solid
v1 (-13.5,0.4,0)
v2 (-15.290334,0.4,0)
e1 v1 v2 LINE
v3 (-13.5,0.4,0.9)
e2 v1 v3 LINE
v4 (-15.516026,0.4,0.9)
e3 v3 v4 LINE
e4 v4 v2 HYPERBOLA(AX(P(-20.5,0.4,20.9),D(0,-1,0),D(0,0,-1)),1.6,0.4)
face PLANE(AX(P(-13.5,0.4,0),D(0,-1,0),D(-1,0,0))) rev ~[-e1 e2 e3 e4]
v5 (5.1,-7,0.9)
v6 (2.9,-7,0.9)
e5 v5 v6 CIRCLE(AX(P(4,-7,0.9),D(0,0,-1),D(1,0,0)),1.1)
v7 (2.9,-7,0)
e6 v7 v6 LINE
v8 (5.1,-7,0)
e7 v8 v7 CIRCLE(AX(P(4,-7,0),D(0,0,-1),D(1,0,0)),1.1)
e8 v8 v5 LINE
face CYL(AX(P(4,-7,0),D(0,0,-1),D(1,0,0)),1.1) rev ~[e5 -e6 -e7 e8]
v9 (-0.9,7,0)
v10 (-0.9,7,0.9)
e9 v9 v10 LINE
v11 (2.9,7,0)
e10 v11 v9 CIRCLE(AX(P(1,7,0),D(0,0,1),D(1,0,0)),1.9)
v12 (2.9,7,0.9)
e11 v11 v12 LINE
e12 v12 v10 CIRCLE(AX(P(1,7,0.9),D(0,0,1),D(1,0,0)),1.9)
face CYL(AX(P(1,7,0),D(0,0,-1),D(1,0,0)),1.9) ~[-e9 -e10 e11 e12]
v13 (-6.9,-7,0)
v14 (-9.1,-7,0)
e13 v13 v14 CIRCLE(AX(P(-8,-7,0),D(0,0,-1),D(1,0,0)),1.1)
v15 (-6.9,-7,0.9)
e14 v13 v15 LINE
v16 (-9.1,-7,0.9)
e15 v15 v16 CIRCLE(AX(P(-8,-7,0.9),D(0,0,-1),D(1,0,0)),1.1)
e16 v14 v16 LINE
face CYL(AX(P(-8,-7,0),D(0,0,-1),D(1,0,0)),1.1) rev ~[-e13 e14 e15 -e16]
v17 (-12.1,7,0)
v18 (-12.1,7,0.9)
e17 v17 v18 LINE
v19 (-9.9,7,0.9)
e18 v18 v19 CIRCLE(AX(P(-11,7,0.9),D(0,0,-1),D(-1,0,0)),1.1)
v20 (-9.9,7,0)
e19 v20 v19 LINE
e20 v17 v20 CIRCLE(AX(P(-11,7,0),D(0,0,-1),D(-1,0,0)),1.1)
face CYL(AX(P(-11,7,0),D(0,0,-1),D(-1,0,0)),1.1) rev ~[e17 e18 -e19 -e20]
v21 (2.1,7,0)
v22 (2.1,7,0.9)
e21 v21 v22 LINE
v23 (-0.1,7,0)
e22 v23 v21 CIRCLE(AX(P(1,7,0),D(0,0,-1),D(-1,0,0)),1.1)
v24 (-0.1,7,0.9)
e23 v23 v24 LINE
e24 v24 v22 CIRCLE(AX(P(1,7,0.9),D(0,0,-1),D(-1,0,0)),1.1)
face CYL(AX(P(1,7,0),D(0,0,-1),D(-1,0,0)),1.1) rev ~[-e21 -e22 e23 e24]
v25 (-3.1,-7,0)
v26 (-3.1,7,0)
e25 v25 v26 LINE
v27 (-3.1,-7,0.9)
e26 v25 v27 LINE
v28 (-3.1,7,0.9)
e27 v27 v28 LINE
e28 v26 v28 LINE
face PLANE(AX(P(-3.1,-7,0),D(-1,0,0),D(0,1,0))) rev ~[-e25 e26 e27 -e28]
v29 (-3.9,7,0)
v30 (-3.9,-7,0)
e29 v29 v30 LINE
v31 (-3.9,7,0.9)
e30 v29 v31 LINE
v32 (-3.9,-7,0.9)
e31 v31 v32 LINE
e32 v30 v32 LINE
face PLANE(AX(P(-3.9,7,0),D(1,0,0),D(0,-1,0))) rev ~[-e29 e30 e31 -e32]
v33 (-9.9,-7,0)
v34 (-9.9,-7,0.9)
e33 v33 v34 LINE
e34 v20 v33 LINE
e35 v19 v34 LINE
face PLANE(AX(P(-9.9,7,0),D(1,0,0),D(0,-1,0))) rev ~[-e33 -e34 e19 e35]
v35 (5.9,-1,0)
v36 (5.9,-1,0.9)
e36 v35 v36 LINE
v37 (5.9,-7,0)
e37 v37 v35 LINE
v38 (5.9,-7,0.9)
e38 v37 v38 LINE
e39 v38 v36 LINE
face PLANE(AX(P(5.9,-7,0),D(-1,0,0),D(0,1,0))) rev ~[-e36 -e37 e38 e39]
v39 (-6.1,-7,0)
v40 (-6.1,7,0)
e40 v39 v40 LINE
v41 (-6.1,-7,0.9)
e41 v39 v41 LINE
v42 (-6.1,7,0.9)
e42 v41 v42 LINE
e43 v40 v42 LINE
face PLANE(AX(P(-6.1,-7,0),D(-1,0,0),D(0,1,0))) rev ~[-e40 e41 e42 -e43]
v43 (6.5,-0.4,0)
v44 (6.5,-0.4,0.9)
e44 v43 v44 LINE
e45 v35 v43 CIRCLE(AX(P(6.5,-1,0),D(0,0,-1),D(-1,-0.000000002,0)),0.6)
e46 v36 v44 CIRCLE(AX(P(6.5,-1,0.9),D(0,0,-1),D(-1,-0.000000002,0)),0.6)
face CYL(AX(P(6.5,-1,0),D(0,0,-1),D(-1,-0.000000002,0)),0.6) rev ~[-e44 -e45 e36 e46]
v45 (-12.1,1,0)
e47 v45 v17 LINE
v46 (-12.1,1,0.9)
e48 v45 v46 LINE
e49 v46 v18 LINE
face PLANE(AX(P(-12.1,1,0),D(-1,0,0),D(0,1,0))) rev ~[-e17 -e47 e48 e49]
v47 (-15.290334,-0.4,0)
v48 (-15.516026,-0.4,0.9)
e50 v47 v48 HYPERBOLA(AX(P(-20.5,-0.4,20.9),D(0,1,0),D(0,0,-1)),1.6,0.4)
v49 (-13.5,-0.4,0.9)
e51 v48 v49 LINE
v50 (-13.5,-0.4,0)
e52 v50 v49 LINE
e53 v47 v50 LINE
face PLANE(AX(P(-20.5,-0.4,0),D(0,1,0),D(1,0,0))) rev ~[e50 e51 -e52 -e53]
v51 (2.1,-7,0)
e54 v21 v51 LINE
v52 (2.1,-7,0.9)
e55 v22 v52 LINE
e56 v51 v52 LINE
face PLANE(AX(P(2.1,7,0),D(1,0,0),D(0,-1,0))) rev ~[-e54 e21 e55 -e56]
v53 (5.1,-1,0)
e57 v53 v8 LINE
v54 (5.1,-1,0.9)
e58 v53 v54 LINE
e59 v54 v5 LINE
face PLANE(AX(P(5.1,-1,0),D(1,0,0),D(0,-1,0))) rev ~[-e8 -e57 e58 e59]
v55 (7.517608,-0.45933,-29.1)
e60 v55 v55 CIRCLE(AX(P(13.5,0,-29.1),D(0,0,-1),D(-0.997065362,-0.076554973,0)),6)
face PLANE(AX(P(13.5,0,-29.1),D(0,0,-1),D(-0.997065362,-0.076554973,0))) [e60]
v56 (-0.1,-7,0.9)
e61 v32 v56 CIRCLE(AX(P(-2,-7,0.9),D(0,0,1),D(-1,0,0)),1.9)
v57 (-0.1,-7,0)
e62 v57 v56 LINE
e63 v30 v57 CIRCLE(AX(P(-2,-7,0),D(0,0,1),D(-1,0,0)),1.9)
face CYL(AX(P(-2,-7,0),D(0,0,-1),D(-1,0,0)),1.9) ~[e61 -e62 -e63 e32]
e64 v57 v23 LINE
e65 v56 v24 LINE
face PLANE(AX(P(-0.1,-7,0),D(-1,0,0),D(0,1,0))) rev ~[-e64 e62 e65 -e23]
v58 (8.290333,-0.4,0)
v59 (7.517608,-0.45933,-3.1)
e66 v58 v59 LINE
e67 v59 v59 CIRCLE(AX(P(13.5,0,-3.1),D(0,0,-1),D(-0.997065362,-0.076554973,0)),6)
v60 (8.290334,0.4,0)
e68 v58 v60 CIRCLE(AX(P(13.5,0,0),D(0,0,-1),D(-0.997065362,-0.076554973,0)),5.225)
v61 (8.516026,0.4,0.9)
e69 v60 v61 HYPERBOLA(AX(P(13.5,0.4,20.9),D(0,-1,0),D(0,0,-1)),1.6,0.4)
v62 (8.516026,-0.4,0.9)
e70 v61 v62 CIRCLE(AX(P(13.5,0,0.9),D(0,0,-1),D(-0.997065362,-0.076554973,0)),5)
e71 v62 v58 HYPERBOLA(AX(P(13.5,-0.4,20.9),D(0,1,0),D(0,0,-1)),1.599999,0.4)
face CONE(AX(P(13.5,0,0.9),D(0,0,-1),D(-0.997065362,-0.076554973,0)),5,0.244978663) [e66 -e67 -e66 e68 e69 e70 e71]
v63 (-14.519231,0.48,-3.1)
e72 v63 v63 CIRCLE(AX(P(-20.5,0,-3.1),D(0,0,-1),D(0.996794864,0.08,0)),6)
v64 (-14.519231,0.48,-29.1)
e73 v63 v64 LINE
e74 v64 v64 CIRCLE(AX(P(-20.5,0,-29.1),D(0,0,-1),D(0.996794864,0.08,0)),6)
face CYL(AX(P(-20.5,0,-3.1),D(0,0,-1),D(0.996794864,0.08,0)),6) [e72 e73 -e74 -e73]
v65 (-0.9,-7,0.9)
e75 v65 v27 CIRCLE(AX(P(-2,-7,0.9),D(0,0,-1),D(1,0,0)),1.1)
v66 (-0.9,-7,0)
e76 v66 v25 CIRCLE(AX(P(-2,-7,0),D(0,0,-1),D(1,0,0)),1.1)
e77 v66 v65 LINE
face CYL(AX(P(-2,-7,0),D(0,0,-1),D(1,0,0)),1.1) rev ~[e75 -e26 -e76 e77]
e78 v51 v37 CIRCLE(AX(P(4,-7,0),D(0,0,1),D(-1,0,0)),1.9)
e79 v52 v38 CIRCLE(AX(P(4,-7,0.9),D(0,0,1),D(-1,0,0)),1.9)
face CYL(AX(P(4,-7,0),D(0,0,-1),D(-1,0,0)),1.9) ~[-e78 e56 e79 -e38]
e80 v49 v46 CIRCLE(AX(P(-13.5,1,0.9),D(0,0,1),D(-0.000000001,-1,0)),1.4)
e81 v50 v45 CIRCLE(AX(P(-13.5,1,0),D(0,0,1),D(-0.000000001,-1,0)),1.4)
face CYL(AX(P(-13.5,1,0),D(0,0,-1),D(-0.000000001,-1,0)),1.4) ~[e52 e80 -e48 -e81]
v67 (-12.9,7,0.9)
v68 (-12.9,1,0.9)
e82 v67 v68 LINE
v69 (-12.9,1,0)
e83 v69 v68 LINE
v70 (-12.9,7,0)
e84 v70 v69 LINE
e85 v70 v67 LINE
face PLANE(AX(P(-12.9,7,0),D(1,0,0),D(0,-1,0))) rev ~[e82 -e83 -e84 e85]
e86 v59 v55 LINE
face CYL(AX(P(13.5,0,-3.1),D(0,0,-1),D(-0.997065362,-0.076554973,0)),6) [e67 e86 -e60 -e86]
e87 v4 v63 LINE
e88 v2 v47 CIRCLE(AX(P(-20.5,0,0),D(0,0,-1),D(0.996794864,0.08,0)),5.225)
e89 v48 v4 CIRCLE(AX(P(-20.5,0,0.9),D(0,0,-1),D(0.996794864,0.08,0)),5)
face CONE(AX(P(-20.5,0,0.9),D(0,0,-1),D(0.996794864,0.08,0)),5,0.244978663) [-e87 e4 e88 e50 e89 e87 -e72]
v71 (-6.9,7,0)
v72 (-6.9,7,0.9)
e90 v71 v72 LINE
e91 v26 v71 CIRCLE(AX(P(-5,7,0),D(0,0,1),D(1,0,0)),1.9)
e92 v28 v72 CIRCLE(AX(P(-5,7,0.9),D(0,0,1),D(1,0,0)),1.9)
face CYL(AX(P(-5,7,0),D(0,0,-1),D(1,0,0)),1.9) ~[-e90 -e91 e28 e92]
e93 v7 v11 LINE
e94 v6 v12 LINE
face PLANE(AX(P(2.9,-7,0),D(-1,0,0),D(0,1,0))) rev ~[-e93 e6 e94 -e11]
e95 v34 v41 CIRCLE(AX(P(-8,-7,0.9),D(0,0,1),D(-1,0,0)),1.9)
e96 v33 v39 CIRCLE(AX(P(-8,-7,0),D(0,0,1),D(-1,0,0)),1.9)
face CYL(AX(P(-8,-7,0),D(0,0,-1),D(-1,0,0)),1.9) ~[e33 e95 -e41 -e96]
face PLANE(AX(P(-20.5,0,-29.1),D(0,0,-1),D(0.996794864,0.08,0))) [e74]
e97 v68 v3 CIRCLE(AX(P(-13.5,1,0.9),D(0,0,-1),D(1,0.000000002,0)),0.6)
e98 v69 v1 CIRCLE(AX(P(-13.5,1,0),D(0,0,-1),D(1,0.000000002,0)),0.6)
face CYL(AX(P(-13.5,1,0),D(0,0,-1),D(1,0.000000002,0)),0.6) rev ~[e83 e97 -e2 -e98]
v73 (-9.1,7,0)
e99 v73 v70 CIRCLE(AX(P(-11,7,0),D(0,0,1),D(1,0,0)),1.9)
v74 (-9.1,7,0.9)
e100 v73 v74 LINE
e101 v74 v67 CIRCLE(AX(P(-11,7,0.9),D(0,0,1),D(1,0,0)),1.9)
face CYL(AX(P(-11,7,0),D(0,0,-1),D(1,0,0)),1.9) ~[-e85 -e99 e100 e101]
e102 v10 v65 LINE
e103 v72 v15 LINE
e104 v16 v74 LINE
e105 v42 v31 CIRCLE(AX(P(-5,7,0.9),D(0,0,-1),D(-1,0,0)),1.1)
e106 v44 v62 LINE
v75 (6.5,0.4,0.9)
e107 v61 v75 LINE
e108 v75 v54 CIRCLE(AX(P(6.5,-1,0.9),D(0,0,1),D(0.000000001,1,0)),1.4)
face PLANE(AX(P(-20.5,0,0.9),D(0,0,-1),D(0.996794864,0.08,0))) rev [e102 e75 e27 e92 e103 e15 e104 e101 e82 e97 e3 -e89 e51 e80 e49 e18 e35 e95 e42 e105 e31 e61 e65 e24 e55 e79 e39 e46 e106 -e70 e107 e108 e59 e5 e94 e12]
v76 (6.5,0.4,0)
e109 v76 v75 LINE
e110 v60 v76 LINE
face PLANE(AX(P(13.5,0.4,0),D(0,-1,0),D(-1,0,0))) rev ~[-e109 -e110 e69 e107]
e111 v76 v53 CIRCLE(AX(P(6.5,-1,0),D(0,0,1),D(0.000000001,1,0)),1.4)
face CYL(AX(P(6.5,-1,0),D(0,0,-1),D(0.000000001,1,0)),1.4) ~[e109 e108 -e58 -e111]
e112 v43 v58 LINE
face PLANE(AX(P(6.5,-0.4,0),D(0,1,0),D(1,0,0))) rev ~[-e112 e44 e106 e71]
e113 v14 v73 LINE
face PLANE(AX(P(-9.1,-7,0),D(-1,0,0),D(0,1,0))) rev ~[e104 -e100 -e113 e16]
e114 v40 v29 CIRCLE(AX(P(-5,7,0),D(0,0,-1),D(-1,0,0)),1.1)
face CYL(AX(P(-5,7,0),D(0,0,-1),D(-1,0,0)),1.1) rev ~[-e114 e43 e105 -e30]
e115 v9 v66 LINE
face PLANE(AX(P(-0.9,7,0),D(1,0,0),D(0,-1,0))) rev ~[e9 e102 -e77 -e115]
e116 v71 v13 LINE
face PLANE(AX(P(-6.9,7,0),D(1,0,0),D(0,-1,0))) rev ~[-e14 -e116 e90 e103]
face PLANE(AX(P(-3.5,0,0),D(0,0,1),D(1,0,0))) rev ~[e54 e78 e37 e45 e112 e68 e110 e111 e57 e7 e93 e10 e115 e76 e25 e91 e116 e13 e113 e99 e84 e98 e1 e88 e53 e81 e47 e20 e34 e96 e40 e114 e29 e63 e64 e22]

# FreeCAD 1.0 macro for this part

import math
import FreeCAD as App
import Part
import Sketcher

V = App.Vector


def add_polygon(sketch, points):
    """Adds a closed chain of lines whose ends are joined by coincident constraints."""
    first, n = sketch.GeometryCount, len(points)
    for a, b in zip(points, points[1:] + points[:1]):
        sketch.addGeometry(Part.LineSegment(App.Vector(*a, 0), App.Vector(*b, 0)), False)
    for i in range(n):
        sketch.addConstraint(Sketcher.Constraint("Coincident", first + i, 2, first + (i + 1) % n, 1))

doc = App.newDocument("Part")
body = doc.addObject("PartDesign::Body", "Body")

# Sketch on XY plane
sketch1 = doc.addObject("Sketcher::SketchObject", "Sketch")
body.addObject(sketch1)
sketch1.AttachmentSupport = (doc.XY_Plane, [""])
sketch1.MapMode = "FlatFace"
sketch1.addGeometry(Part.LineSegment(V(-20.5, -0.4, 0), V(-13.5, -0.4, 0)), False)
sketch1.addGeometry(Part.ArcOfCircle(Part.Circle(V(-13.5, 1, 0), V(0, 0, 1), 1.4), math.radians(-90), math.radians(0)), False)
sketch1.addGeometry(Part.LineSegment(V(-12.1, 1, 0), V(-12.1, 7, 0)), False)
sketch1.addGeometry(Part.ArcOfCircle(Part.Circle(V(-11, 7, 0), V(0, 0, 1), 1.1), math.radians(0), math.radians(180)), False)
sketch1.addGeometry(Part.LineSegment(V(-9.9, 7, 0), V(-9.9, -7, 0)), False)
sketch1.addGeometry(Part.ArcOfCircle(Part.Circle(V(-8, -7, 0), V(0, 0, 1), 1.9), math.radians(180), math.radians(360)), False)
sketch1.addGeometry(Part.LineSegment(V(-6.1, -7, 0), V(-6.1, 7, 0)), False)
sketch1.addGeometry(Part.ArcOfCircle(Part.Circle(V(-5, 7, 0), V(0, 0, 1), 1.1), math.radians(0), math.radians(180)), False)
sketch1.addGeometry(Part.LineSegment(V(-3.9, 7, 0), V(-3.9, -7, 0)), False)
sketch1.addGeometry(Part.ArcOfCircle(Part.Circle(V(-2, -7, 0), V(0, 0, 1), 1.9), math.radians(180), math.radians(360)), False)
sketch1.addGeometry(Part.LineSegment(V(-0.1, -7, 0), V(-0.1, 7, 0)), False)
sketch1.addGeometry(Part.ArcOfCircle(Part.Circle(V(1, 7, 0), V(0, 0, 1), 1.1), math.radians(0), math.radians(180)), False)
sketch1.addGeometry(Part.LineSegment(V(2.1, 7, 0), V(2.1, -7, 0)), False)
sketch1.addGeometry(Part.ArcOfCircle(Part.Circle(V(4, -7, 0), V(0, 0, 1), 1.9), math.radians(180), math.radians(360)), False)
sketch1.addGeometry(Part.LineSegment(V(5.9, -7, 0), V(5.9, -1, 0)), False)
sketch1.addGeometry(Part.ArcOfCircle(Part.Circle(V(6.5, -1, 0), V(0, 0, 1), 0.6), math.radians(90), math.radians(180)), False)
sketch1.addGeometry(Part.LineSegment(V(6.5, -0.4, 0), V(13.5, -0.4, 0)), False)
sketch1.addGeometry(Part.ArcOfCircle(Part.Circle(V(13.5, 0, 0), V(0, 0, 1), 0.4), math.radians(-90), math.radians(90)), False)
sketch1.addGeometry(Part.LineSegment(V(13.5, 0.4, 0), V(6.5, 0.4, 0)), False)
sketch1.addGeometry(Part.ArcOfCircle(Part.Circle(V(6.5, -1, 0), V(0, 0, 1), 1.4), math.radians(90), math.radians(180)), False)
sketch1.addGeometry(Part.LineSegment(V(5.1, -1, 0), V(5.1, -7, 0)), False)
sketch1.addGeometry(Part.ArcOfCircle(Part.Circle(V(4, -7, 0), V(0, 0, 1), 1.1), math.radians(180), math.radians(360)), False)
sketch1.addGeometry(Part.LineSegment(V(2.9, -7, 0), V(2.9, 7, 0)), False)
sketch1.addGeometry(Part.ArcOfCircle(Part.Circle(V(1, 7, 0), V(0, 0, 1), 1.9), math.radians(0), math.radians(180)), False)
sketch1.addGeometry(Part.LineSegment(V(-0.9, 7, 0), V(-0.9, -7, 0)), False)
sketch1.addGeometry(Part.ArcOfCircle(Part.Circle(V(-2, -7, 0), V(0, 0, 1), 1.1), math.radians(180), math.radians(360)), False)
sketch1.addGeometry(Part.LineSegment(V(-3.1, -7, 0), V(-3.1, 7, 0)), False)
sketch1.addGeometry(Part.ArcOfCircle(Part.Circle(V(-5, 7, 0), V(0, 0, 1), 1.9), math.radians(0), math.radians(180)), False)
sketch1.addGeometry(Part.LineSegment(V(-6.9, 7, 0), V(-6.9, -7, 0)), False)
sketch1.addGeometry(Part.ArcOfCircle(Part.Circle(V(-8, -7, 0), V(0, 0, 1), 1.1), math.radians(180), math.radians(360)), False)
sketch1.addGeometry(Part.LineSegment(V(-9.1, -7, 0), V(-9.1, 7, 0)), False)
sketch1.addGeometry(Part.ArcOfCircle(Part.Circle(V(-11, 7, 0), V(0, 0, 1), 1.9), math.radians(0), math.radians(180)), False)
sketch1.addGeometry(Part.LineSegment(V(-12.9, 7, 0), V(-12.9, 1, 0)), False)
sketch1.addGeometry(Part.ArcOfCircle(Part.Circle(V(-13.5, 1, 0), V(0, 0, 1), 0.6), math.radians(-90), math.radians(0)), False)
sketch1.addGeometry(Part.LineSegment(V(-13.5, 0.4, 0), V(-20.5, 0.4, 0)), False)
sketch1.addGeometry(Part.ArcOfCircle(Part.Circle(V(-20.5, 0, 0), V(0, 0, 1), 0.4), math.radians(90), math.radians(270)), False)
sketch1.addConstraint(Sketcher.Constraint("Tangent", 0, 2, 1, 1))
sketch1.addConstraint(Sketcher.Constraint("Tangent", 1, 2, 2, 1))
sketch1.addConstraint(Sketcher.Constraint("Tangent", 2, 2, 3, 2))
sketch1.addConstraint(Sketcher.Constraint("Tangent", 3, 1, 4, 1))
sketch1.addConstraint(Sketcher.Constraint("Tangent", 4, 2, 5, 1))
sketch1.addConstraint(Sketcher.Constraint("Tangent", 5, 2, 6, 1))
sketch1.addConstraint(Sketcher.Constraint("Tangent", 6, 2, 7, 2))
sketch1.addConstraint(Sketcher.Constraint("Tangent", 7, 1, 8, 1))
sketch1.addConstraint(Sketcher.Constraint("Tangent", 8, 2, 9, 1))
sketch1.addConstraint(Sketcher.Constraint("Tangent", 9, 2, 10, 1))
sketch1.addConstraint(Sketcher.Constraint("Tangent", 10, 2, 11, 2))
sketch1.addConstraint(Sketcher.Constraint("Tangent", 11, 1, 12, 1))
sketch1.addConstraint(Sketcher.Constraint("Tangent", 12, 2, 13, 1))
sketch1.addConstraint(Sketcher.Constraint("Tangent", 13, 2, 14, 1))
sketch1.addConstraint(Sketcher.Constraint("Tangent", 14, 2, 15, 2))
sketch1.addConstraint(Sketcher.Constraint("Tangent", 15, 1, 16, 1))
sketch1.addConstraint(Sketcher.Constraint("Tangent", 16, 2, 17, 1))
sketch1.addConstraint(Sketcher.Constraint("Tangent", 17, 2, 18, 1))
sketch1.addConstraint(Sketcher.Constraint("Tangent", 18, 2, 19, 1))
sketch1.addConstraint(Sketcher.Constraint("Tangent", 19, 2, 20, 1))
sketch1.addConstraint(Sketcher.Constraint("Tangent", 20, 2, 21, 2))
sketch1.addConstraint(Sketcher.Constraint("Tangent", 21, 1, 22, 1))
sketch1.addConstraint(Sketcher.Constraint("Tangent", 22, 2, 23, 1))
sketch1.addConstraint(Sketcher.Constraint("Tangent", 23, 2, 24, 1))
sketch1.addConstraint(Sketcher.Constraint("Tangent", 24, 2, 25, 2))
sketch1.addConstraint(Sketcher.Constraint("Tangent", 25, 1, 26, 1))
sketch1.addConstraint(Sketcher.Constraint("Tangent", 26, 2, 27, 1))
sketch1.addConstraint(Sketcher.Constraint("Tangent", 27, 2, 28, 1))
sketch1.addConstraint(Sketcher.Constraint("Tangent", 28, 2, 29, 2))
sketch1.addConstraint(Sketcher.Constraint("Tangent", 29, 1, 30, 1))
sketch1.addConstraint(Sketcher.Constraint("Tangent", 30, 2, 31, 1))
sketch1.addConstraint(Sketcher.Constraint("Tangent", 31, 2, 32, 1))
sketch1.addConstraint(Sketcher.Constraint("Tangent", 32, 2, 33, 2))
sketch1.addConstraint(Sketcher.Constraint("Tangent", 33, 1, 34, 1))
sketch1.addConstraint(Sketcher.Constraint("Tangent", 34, 2, 35, 1))
sketch1.addConstraint(Sketcher.Constraint("Tangent", 35, 2, 0, 1))
sketch1.addConstraint(Sketcher.Constraint("Horizontal", 0))
sketch1.addConstraint(Sketcher.Constraint("Vertical", 2))
sketch1.addConstraint(Sketcher.Constraint("Vertical", 4))
sketch1.addConstraint(Sketcher.Constraint("Vertical", 6))
sketch1.addConstraint(Sketcher.Constraint("Vertical", 8))
sketch1.addConstraint(Sketcher.Constraint("Vertical", 10))
sketch1.addConstraint(Sketcher.Constraint("Vertical", 12))
sketch1.addConstraint(Sketcher.Constraint("Vertical", 14))
sketch1.addConstraint(Sketcher.Constraint("Horizontal", 16))
sketch1.addConstraint(Sketcher.Constraint("Horizontal", 18))
sketch1.addConstraint(Sketcher.Constraint("Vertical", 20))
sketch1.addConstraint(Sketcher.Constraint("Vertical", 22))
sketch1.addConstraint(Sketcher.Constraint("Vertical", 24))
sketch1.addConstraint(Sketcher.Constraint("Vertical", 26))
sketch1.addConstraint(Sketcher.Constraint("Vertical", 28))
sketch1.addConstraint(Sketcher.Constraint("Vertical", 30))
sketch1.addConstraint(Sketcher.Constraint("Vertical", 32))
sketch1.addConstraint(Sketcher.Constraint("Horizontal", 34))
sketch1.addConstraint(Sketcher.Constraint("Coincident", 19, 3, 15, 3))
sketch1.addConstraint(Sketcher.Constraint("Coincident", 21, 3, 13, 3))
sketch1.addConstraint(Sketcher.Constraint("Coincident", 23, 3, 11, 3))
sketch1.addConstraint(Sketcher.Constraint("Coincident", 25, 3, 9, 3))
sketch1.addConstraint(Sketcher.Constraint("Coincident", 27, 3, 7, 3))
sketch1.addConstraint(Sketcher.Constraint("Coincident", 29, 3, 5, 3))
sketch1.addConstraint(Sketcher.Constraint("Coincident", 31, 3, 3, 3))
sketch1.addConstraint(Sketcher.Constraint("Coincident", 33, 3, 1, 3))
sketch1.addConstraint(Sketcher.Constraint("Equal", 3, 7))
sketch1.addConstraint(Sketcher.Constraint("Equal", 5, 9))
sketch1.addConstraint(Sketcher.Constraint("Equal", 7, 11))
sketch1.addConstraint(Sketcher.Constraint("Equal", 9, 13))
sketch1.addConstraint(Sketcher.Constraint("Equal", 1, 19))
sketch1.addConstraint(Sketcher.Constraint("Equal", 11, 21))
sketch1.addConstraint(Sketcher.Constraint("Symmetric", 0, 2, 17, 2, -1, 1))
sketch1.addConstraint(Sketcher.Constraint("PointOnObject", 17, 3, -1))
sketch1.addConstraint(Sketcher.Constraint("Horizontal", 3, 3, 7, 3))
sketch1.addConstraint(Sketcher.Constraint("Horizontal", 5, 3, 9, 3))
sketch1.addConstraint(Sketcher.Constraint("Horizontal", 7, 3, 11, 3))
sketch1.addConstraint(Sketcher.Constraint("Horizontal", 9, 3, 13, 3))
sketch1.addConstraint(Sketcher.Constraint("Equal", 0, 16))
sketch1.addConstraint(Sketcher.Constraint("Equal", 2, 14))
sketch1.addConstraint(Sketcher.Constraint("Radius", 1, 1.4))
sketch1.addConstraint(Sketcher.Constraint("Radius", 3, 1.1))
sketch1.addConstraint(Sketcher.Constraint("Radius", 5, 1.9))
sketch1.addConstraint(Sketcher.Constraint("DistanceX", 0, 1, 0, 2, 7.0))
sketch1.addConstraint(Sketcher.Constraint("DistanceY", 2, 1, 2, 2, 6.0))
pad1 = doc.addObject("PartDesign::Pad", "Pad")
body.addObject(pad1)
pad1.Profile = sketch1
pad1.Length = 0.9

# Sketch on XZ plane
sketch2 = doc.addObject("Sketcher::SketchObject", "Sketch001")
body.addObject(sketch2)
sketch2.AttachmentSupport = (doc.XZ_Plane, [""])
sketch2.MapMode = "FlatFace"
add_polygon(sketch2, [(-25.5, 0.9), (-20.5, 0.9), (-20.5, -29.1), (-26.5, -29.1), (-26.5, -3.1)])  # lines 0-4
sketch2.addGeometry(Part.LineSegment(V(-20.5, 0.9, 0), V(-20.5, -29.1, 0)), True)  # axis
sketch2.addConstraint(Sketcher.Constraint("Horizontal", 0))
sketch2.addConstraint(Sketcher.Constraint("Vertical", 1))
sketch2.addConstraint(Sketcher.Constraint("Horizontal", 2))
sketch2.addConstraint(Sketcher.Constraint("Vertical", 3))
sketch2.addConstraint(Sketcher.Constraint("Vertical", 5))
sketch2.addConstraint(Sketcher.Constraint("Coincident", 5, 1, 0, 2))
sketch2.addConstraint(Sketcher.Constraint("Horizontal", 2, 2, 5, 2))
sketch2.addConstraint(Sketcher.Constraint("DistanceX", 0, 1, 0, 2, 5.0))
sketch2.addConstraint(Sketcher.Constraint("DistanceX", 2, 2, 2, 1, 6.0))
sketch2.addConstraint(Sketcher.Constraint("DistanceY", 1, 2, 1, 1, 30.0))
sketch2.addConstraint(Sketcher.Constraint("DistanceY", 3, 1, 3, 2, 26.0))
sketch2.addConstraint(Sketcher.Constraint("DistanceX", 0, 2, -1, 1, 20.5))
sketch2.addConstraint(Sketcher.Constraint("DistanceY", -1, 1, 0, 2, 0.9))
revolution = doc.addObject("PartDesign::Revolution", "Revolution")
body.addObject(revolution)
revolution.Profile = sketch2
revolution.ReferenceAxis = (sketch2, ["Axis0"])
revolution.Angle = 360

# Sketch on XZ plane
sketch3 = doc.addObject("Sketcher::SketchObject", "Sketch002")
body.addObject(sketch3)
sketch3.AttachmentSupport = (doc.XZ_Plane, [""])
sketch3.MapMode = "FlatFace"
add_polygon(sketch3, [(13.5, 0.9), (18.5, 0.9), (19.5, -3.1), (19.5, -29.1), (13.5, -29.1)])  # lines 0-4
sketch3.addGeometry(Part.LineSegment(V(13.5, 0.9, 0), V(13.5, -29.1, 0)), True)  # axis
sketch3.addConstraint(Sketcher.Constraint("Horizontal", 0))
sketch3.addConstraint(Sketcher.Constraint("Vertical", 2))
sketch3.addConstraint(Sketcher.Constraint("Horizontal", 3))
sketch3.addConstraint(Sketcher.Constraint("Vertical", 4))
sketch3.addConstraint(Sketcher.Constraint("Vertical", 5))
sketch3.addConstraint(Sketcher.Constraint("Coincident", 5, 1, 4, 2))
sketch3.addConstraint(Sketcher.Constraint("Horizontal", 2, 2, 5, 2))
sketch3.addConstraint(Sketcher.Constraint("DistanceX", 0, 1, 0, 2, 5.0))
sketch3.addConstraint(Sketcher.Constraint("DistanceX", 3, 2, 3, 1, 6.0))
sketch3.addConstraint(Sketcher.Constraint("DistanceY", 2, 2, 2, 1, 26.0))
sketch3.addConstraint(Sketcher.Constraint("DistanceY", 4, 1, 4, 2, 30.0))
sketch3.addConstraint(Sketcher.Constraint("DistanceX", -1, 1, 0, 2, 18.5))
sketch3.addConstraint(Sketcher.Constraint("DistanceY", -1, 1, 0, 2, 0.9))
revolution2 = doc.addObject("PartDesign::Revolution", "Revolution001")
body.addObject(revolution2)
revolution2.Profile = sketch3
revolution2.ReferenceAxis = (sketch3, ["Axis0"])
revolution2.Angle = 360

doc.recompute()
